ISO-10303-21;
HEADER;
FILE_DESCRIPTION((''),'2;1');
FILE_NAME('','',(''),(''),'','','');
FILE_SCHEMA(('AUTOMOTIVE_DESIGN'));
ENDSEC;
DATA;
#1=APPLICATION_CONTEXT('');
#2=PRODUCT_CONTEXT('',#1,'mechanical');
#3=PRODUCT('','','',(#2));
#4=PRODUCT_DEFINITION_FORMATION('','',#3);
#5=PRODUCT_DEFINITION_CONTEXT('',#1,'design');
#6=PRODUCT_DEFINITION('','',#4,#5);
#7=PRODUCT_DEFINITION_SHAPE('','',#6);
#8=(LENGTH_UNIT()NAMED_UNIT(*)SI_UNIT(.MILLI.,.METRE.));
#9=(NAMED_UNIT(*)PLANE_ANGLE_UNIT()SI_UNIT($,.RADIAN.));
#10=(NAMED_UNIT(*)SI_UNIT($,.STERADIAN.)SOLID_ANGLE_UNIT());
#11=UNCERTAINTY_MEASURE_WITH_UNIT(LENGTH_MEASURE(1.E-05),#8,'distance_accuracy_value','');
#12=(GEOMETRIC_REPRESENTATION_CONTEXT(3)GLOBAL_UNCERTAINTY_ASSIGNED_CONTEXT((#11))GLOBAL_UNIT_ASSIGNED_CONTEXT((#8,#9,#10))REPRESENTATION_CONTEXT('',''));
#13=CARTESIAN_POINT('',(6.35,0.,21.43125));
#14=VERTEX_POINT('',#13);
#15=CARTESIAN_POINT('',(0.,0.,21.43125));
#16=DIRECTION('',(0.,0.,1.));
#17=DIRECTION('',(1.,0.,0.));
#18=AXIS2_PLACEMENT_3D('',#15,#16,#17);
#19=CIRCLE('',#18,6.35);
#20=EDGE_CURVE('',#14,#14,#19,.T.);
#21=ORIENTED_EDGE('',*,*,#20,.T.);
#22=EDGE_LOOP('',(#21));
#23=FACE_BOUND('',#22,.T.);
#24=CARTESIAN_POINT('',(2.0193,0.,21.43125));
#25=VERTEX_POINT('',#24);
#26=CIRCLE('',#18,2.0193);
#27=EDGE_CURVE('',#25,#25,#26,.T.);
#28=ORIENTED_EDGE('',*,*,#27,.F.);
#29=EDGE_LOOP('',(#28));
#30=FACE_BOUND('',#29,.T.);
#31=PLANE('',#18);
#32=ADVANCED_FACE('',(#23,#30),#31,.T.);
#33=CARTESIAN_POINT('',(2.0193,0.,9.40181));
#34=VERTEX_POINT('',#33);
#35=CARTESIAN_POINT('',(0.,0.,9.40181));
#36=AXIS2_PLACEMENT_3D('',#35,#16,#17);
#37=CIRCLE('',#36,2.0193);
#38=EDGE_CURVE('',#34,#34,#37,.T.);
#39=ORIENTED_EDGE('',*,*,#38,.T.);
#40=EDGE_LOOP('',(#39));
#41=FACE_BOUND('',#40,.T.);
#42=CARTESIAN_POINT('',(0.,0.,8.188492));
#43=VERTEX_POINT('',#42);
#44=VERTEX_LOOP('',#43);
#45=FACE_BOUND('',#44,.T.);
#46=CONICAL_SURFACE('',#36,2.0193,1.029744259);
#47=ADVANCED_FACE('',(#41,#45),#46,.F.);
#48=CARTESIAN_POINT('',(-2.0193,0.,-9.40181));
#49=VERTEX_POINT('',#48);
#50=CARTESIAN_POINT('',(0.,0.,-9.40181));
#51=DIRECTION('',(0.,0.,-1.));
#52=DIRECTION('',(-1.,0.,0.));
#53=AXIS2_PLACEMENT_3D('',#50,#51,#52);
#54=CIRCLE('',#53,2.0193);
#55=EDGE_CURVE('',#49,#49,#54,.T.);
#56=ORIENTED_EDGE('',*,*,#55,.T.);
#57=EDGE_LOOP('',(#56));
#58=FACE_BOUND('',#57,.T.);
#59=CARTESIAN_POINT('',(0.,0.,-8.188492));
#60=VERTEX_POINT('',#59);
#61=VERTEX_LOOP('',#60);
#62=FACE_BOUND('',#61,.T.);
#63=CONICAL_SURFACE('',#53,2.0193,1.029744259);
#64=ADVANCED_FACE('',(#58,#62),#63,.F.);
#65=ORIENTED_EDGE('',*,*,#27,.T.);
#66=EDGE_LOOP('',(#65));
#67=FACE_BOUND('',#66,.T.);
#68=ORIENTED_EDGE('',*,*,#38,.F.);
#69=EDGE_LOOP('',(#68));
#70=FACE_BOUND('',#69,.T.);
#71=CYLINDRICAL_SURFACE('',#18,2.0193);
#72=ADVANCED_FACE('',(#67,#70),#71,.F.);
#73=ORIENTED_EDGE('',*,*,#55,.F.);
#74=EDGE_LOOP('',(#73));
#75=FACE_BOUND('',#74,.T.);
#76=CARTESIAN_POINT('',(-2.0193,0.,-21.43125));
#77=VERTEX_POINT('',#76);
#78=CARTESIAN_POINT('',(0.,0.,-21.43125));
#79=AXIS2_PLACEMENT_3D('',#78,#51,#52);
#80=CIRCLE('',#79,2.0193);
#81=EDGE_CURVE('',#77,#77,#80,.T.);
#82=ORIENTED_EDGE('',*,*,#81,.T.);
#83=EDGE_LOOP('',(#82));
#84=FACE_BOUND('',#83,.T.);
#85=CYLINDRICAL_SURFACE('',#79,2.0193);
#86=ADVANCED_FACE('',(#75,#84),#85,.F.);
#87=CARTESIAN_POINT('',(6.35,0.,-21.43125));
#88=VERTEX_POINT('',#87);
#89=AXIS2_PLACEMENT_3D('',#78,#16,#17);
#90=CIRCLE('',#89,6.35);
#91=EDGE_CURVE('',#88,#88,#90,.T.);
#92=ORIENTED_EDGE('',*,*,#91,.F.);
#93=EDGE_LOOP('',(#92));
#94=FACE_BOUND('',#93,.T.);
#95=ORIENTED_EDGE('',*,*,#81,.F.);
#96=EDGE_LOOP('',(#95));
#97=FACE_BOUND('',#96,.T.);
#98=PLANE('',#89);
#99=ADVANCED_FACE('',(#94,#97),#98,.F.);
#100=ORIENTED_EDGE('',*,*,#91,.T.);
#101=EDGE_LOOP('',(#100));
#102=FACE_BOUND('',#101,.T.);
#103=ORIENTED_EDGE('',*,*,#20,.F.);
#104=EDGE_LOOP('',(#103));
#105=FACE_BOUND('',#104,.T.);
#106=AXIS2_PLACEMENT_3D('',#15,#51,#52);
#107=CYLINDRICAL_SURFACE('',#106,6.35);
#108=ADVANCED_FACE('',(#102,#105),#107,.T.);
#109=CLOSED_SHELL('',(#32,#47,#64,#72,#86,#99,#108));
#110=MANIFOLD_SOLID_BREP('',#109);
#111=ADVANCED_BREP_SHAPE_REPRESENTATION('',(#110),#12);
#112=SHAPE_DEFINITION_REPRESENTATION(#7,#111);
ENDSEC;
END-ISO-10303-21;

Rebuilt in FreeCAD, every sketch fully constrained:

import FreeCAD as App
import Part
import Sketcher
Q = App.Units.Quantity

doc = App.newDocument("Part")
body = doc.addObject("PartDesign::Body", "Body")

# Sketch on XY plane
sketch1 = body.newObject("Sketcher::SketchObject", "Sketch")
sketch1.AttachmentSupport = (doc.getObject("XY_Plane"), [""])
sketch1.MapMode = "FlatFace"
sketch1.addGeometry(Part.Circle(App.Vector(0, 0, 0), App.Vector(0, 0, 1), 6.35), False)
sketch1.addConstraint([
    Sketcher.Constraint("Coincident", 0, 3, -1, 1),
    Sketcher.Constraint("Diameter", 0, Q("0.5 in")),
])
pad1 = body.newObject("PartDesign::Pad", "Pad")
pad1.Profile = sketch1
pad1.Length = Q("1.6875 in")
pad1.Midplane = True

# Sketch on XY plane
sketch2 = body.newObject("Sketcher::SketchObject", "Sketch001")
sketch2.AttachmentSupport = (doc.getObject("XY_Plane"), [""])
sketch2.MapMode = "FlatFace"
sketch2.AttachmentOffset = App.Placement(App.Vector(0, 0, 0.84375 * 25.4), App.Rotation())
sketch2.addGeometry(Part.Circle(App.Vector(0, 0, 0), App.Vector(0, 0, 1), 2.0193), False)
sketch2.addConstraint([
    Sketcher.Constraint("Coincident", 0, 3, -1, 1),
    Sketcher.Constraint("Diameter", 0, Q("0.159 in")),
])
doc.recompute()
hole = body.newObject("PartDesign::Hole", "Hole")
hole.Profile = sketch2
hole.ThreadType = "None"
hole.Diameter = Q("0.159 in")
hole.DepthType = "Dimension"
hole.Depth = Q("0.4736 in")
hole.DrillPoint = "Angled"
hole.DrillPointAngle = 118

# Sketch on XY plane
sketch3 = body.newObject("Sketcher::SketchObject", "Sketch002")
sketch3.AttachmentSupport = (doc.getObject("XY_Plane"), [""])
sketch3.MapMode = "FlatFace"
sketch3.AttachmentOffset = App.Placement(App.Vector(0, 0, -0.84375 * 25.4), App.Rotation())
sketch3.addGeometry(Part.Circle(App.Vector(0, 0, 0), App.Vector(0, 0, 1), 2.0193), False)
sketch3.addConstraint([
    Sketcher.Constraint("Coincident", 0, 3, -1, 1),
    Sketcher.Constraint("Diameter", 0, Q("0.159 in")),
])
doc.recompute()
hole2 = body.newObject("PartDesign::Hole", "Hole001")
hole2.Profile = sketch3
hole2.ThreadType = "None"
hole2.Diameter = Q("0.159 in")
hole2.DepthType = "Dimension"
hole2.Depth = Q("0.4736 in")
hole2.DrillPoint = "Angled"
hole2.DrillPointAngle = 118
hole2.Reversed = True

doc.recompute()
